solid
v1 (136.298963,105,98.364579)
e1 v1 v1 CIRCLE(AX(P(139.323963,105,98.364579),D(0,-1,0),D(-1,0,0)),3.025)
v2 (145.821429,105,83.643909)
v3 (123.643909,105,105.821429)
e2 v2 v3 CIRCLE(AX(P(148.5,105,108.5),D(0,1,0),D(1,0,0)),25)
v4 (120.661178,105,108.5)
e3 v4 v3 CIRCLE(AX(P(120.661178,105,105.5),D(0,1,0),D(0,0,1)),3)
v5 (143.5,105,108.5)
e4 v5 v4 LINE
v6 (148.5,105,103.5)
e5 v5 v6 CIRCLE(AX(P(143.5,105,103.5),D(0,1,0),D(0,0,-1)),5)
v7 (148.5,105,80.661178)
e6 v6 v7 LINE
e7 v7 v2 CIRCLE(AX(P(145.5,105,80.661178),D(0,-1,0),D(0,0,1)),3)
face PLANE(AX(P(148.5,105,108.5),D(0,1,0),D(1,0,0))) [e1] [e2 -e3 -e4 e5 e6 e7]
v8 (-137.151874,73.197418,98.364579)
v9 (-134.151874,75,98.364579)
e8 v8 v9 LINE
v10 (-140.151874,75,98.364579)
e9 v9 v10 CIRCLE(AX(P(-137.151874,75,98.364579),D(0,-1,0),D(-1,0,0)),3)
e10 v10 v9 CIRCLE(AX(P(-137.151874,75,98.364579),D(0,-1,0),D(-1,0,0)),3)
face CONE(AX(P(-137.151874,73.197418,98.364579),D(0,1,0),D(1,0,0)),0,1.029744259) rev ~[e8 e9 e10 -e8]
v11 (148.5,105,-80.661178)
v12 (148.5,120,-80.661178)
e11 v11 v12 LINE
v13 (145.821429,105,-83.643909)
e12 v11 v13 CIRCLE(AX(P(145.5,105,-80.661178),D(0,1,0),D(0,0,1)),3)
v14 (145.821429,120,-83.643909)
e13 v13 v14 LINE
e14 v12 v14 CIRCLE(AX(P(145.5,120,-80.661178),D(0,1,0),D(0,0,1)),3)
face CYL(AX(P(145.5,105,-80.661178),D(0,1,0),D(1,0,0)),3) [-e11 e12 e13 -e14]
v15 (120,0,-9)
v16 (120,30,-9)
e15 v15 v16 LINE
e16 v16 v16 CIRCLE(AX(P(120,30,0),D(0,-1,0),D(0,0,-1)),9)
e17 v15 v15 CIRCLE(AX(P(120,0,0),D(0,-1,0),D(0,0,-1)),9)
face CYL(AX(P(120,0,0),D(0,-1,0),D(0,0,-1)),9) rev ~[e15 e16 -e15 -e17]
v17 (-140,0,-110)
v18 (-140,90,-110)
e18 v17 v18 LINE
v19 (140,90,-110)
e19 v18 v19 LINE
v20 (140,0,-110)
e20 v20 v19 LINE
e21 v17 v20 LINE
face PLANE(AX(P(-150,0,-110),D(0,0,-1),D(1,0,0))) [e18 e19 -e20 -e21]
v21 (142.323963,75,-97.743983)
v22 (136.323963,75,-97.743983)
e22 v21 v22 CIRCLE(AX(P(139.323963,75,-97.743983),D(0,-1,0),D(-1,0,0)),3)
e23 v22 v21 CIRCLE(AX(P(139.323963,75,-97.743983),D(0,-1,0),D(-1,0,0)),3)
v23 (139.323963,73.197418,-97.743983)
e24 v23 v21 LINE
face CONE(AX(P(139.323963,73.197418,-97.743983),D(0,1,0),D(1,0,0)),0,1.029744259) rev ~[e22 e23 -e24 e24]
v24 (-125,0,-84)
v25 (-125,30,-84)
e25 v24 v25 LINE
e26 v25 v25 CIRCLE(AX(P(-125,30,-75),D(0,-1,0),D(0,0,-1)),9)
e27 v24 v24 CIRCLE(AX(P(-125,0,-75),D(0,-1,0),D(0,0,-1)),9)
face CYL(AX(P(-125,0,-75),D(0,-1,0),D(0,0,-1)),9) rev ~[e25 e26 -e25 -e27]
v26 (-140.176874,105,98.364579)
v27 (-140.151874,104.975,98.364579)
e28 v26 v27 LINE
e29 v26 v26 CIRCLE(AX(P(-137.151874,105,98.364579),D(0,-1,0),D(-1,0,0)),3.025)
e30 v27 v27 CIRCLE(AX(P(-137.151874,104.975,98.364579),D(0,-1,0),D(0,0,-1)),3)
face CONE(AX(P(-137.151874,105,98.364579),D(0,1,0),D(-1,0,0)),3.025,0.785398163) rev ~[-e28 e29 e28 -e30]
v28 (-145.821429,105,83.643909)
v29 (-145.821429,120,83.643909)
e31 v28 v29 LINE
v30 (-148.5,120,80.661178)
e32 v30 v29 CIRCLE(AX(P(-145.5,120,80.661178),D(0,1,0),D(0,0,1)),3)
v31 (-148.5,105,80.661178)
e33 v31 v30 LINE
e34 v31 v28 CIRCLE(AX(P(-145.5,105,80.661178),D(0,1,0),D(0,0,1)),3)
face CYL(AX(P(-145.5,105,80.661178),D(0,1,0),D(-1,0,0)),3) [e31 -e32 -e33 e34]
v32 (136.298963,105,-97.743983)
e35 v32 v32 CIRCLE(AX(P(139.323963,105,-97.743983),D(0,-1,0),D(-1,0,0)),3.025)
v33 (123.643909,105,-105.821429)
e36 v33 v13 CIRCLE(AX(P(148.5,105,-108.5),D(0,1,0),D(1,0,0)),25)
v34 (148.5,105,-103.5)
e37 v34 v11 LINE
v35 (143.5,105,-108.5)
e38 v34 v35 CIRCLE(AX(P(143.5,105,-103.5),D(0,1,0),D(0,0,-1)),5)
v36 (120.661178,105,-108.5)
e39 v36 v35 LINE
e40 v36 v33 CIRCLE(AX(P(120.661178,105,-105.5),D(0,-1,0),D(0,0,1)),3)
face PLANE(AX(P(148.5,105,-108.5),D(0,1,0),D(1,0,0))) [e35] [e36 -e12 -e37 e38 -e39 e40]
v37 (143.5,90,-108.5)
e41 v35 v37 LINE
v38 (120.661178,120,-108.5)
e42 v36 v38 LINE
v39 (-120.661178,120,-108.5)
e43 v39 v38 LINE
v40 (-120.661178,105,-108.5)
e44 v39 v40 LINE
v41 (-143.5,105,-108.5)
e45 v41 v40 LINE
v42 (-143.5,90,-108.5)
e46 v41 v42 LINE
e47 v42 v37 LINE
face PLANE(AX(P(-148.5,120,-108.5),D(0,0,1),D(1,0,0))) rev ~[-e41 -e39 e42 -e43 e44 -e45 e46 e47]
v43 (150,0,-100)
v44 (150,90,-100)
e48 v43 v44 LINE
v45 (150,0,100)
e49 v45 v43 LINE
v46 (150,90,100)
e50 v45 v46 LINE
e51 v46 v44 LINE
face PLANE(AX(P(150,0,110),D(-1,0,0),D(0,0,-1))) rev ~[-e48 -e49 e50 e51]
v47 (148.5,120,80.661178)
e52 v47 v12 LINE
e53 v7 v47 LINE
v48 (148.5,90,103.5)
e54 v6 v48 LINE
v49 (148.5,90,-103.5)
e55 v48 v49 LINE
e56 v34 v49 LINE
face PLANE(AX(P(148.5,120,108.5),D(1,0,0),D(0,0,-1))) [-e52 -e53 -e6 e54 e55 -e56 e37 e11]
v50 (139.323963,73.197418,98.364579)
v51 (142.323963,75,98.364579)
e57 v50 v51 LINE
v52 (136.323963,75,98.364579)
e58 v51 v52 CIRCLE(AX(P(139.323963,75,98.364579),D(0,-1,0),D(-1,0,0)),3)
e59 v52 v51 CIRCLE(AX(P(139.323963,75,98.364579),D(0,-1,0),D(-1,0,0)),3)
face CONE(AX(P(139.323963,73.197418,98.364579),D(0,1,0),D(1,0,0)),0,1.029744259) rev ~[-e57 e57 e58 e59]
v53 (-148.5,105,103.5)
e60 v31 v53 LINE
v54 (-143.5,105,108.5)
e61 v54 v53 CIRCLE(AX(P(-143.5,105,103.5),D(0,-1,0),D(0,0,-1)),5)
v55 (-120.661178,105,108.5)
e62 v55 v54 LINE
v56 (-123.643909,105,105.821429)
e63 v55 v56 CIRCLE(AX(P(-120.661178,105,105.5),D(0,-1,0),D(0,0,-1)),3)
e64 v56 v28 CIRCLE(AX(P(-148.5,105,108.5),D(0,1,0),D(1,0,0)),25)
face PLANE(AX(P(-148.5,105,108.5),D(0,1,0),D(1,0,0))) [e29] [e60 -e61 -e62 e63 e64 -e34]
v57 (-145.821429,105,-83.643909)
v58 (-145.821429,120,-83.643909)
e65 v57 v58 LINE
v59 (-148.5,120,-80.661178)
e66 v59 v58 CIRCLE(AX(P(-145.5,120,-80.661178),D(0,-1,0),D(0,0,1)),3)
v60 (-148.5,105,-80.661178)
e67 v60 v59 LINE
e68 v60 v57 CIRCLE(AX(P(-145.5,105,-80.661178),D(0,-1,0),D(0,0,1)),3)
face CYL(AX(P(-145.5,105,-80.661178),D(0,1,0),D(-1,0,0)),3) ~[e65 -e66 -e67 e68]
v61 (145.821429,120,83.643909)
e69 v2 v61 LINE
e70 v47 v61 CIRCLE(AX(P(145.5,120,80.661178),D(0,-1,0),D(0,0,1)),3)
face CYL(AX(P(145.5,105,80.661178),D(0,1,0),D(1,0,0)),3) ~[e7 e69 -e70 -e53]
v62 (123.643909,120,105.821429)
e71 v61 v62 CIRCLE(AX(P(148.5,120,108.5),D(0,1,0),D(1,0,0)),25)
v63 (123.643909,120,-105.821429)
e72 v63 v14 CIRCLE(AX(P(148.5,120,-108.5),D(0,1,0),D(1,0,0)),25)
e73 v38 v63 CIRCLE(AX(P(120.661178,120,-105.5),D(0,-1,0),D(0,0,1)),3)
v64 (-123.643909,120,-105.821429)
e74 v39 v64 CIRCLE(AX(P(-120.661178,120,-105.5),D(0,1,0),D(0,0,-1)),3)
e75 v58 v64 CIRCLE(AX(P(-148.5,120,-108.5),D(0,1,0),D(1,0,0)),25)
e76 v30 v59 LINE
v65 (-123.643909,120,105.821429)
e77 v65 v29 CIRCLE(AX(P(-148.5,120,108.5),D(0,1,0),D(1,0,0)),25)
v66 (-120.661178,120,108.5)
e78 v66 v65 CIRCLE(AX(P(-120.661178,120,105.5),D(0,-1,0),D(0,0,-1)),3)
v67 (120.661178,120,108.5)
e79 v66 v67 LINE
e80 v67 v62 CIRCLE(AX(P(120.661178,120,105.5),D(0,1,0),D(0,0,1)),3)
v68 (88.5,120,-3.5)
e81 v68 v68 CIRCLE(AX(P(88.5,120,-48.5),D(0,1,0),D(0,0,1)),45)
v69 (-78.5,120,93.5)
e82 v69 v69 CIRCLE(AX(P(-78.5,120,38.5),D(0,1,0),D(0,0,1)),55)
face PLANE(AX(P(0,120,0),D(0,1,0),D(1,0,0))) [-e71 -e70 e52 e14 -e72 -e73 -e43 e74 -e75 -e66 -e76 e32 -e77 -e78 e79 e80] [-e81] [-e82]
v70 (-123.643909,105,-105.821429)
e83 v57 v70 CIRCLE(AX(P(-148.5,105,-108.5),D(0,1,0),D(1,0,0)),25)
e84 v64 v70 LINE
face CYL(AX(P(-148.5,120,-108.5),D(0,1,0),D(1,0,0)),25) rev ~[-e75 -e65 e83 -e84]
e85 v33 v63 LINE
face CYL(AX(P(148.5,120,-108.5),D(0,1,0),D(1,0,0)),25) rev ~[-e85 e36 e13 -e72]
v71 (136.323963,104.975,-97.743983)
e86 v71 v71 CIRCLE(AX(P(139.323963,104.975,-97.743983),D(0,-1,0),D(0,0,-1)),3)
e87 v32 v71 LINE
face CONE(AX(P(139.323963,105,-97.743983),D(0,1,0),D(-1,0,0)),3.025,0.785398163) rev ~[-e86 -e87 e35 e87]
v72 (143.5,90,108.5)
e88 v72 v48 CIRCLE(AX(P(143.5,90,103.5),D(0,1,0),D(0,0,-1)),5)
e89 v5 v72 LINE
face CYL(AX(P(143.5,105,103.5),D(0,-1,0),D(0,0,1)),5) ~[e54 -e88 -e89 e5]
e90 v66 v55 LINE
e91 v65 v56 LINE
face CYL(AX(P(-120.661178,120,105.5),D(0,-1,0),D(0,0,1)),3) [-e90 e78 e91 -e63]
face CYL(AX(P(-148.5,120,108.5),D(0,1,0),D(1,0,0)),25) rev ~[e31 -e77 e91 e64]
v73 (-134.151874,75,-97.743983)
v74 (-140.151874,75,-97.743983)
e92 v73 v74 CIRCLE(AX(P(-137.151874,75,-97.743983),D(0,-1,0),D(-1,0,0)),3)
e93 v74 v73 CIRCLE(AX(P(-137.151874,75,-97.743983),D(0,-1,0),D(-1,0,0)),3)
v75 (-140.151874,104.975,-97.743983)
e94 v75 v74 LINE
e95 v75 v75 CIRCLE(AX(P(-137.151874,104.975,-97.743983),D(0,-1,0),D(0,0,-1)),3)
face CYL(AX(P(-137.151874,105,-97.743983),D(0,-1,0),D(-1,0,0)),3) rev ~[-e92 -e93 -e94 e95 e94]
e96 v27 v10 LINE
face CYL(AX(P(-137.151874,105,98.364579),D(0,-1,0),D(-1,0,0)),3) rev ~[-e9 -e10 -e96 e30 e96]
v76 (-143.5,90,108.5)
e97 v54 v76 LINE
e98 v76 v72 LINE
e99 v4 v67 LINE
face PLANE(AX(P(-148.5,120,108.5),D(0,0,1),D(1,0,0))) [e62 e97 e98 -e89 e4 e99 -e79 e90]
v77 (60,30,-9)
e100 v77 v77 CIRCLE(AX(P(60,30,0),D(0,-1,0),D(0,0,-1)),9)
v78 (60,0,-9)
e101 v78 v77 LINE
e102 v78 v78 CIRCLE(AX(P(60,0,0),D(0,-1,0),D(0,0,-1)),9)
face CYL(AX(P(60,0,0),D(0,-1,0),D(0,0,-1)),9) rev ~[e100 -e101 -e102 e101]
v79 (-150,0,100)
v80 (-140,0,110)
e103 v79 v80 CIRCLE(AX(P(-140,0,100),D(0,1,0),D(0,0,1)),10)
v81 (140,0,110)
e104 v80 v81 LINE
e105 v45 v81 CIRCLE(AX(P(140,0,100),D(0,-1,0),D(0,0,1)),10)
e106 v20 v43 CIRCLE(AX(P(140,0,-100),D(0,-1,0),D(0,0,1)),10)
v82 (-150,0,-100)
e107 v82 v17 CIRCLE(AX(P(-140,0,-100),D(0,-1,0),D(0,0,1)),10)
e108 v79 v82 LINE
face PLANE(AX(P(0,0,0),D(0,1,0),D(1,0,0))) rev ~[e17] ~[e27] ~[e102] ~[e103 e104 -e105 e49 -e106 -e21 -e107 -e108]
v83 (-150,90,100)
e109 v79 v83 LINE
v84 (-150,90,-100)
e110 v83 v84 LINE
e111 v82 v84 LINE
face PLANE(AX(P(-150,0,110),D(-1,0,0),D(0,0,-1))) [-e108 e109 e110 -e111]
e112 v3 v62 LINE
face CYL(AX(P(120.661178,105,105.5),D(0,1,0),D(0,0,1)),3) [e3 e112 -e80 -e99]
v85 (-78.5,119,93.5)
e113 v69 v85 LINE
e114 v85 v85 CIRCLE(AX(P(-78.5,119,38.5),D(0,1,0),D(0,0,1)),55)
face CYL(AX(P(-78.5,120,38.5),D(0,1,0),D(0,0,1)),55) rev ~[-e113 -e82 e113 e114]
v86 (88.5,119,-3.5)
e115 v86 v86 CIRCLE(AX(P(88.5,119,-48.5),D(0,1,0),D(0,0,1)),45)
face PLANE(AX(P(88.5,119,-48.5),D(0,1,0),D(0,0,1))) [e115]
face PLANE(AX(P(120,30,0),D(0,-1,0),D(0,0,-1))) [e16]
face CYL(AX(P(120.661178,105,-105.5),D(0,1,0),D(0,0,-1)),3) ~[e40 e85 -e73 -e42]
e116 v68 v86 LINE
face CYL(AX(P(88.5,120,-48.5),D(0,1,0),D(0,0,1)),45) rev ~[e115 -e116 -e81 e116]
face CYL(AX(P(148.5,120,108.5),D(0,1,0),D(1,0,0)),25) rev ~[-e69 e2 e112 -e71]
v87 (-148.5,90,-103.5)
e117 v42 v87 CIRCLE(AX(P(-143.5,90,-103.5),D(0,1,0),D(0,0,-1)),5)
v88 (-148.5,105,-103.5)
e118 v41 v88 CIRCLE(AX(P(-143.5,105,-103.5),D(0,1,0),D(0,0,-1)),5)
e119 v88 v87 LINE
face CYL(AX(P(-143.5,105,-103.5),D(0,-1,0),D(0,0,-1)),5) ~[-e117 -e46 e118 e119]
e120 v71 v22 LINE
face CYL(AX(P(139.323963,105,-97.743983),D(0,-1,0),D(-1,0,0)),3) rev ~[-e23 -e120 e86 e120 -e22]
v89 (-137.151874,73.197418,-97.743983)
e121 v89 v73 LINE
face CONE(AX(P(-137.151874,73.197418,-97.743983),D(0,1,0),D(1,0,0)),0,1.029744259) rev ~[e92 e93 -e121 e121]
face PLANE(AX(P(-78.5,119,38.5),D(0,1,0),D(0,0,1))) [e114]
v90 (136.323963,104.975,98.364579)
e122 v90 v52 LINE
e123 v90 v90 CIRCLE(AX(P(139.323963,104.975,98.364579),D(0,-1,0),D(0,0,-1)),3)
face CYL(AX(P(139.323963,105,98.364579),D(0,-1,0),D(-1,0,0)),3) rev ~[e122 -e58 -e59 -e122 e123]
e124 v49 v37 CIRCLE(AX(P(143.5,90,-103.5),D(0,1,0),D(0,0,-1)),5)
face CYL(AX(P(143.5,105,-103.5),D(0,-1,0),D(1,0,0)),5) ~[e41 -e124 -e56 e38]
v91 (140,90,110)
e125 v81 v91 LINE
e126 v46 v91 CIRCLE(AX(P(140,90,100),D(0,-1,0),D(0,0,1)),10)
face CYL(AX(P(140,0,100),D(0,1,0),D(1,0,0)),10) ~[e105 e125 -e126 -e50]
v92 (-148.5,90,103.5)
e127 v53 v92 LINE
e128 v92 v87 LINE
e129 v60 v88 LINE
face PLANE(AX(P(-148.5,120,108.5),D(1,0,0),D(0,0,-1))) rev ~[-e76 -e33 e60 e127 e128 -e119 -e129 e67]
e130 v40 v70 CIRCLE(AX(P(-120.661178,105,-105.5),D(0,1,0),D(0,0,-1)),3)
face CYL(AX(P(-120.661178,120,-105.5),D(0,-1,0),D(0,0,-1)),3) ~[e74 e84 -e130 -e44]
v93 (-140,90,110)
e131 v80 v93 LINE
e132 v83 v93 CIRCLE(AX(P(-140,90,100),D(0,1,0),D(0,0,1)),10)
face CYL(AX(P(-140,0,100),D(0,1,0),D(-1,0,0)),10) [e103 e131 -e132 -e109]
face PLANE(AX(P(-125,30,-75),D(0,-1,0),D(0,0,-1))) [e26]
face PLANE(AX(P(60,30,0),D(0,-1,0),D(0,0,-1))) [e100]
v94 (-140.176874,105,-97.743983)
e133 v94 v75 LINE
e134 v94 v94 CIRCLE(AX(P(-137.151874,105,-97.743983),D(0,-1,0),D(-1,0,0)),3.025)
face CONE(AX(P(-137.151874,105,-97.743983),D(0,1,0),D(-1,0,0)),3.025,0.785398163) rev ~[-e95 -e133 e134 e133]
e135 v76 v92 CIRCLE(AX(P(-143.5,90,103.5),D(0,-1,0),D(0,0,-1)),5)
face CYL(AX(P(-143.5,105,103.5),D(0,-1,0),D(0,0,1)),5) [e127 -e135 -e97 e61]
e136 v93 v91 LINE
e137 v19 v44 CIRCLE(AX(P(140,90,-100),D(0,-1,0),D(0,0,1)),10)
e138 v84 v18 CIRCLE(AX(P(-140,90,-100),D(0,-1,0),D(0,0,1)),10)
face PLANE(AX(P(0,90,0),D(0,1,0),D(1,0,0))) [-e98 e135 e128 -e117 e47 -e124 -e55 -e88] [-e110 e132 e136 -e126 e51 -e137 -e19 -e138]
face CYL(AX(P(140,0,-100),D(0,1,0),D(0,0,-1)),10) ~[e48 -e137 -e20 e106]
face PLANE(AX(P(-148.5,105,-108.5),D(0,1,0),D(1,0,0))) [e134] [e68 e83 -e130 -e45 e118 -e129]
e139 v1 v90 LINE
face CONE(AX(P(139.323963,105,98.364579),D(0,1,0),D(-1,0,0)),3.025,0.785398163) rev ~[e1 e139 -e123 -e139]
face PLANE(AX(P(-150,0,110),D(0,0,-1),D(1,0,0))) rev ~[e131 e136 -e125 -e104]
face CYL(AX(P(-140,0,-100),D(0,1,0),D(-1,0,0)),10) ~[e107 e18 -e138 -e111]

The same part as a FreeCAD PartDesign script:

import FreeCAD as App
import Part
import Sketcher
from FreeCAD import Vector
Q = App.Units.Quantity


def edges_at(feature, points):
    """Names of the edges that pass closest to the given points."""
    edges = feature.Shape.Edges
    near = lambda p: min(range(len(edges)), key=lambda i: edges[i].distToShape(Part.Vertex(*p))[0])
    return sorted({f"Edge{near(p) + 1}" for p in points})

doc = App.newDocument("Part")
body = doc.addObject("PartDesign::Body", "Body")

sketch1 = doc.addObject("Sketcher::SketchObject", "Sketch")
body.addObject(sketch1)
sketch1.AttachmentSupport = (doc.XZ_Plane, [""])
sketch1.MapMode = "FlatFace"
sketch1.addGeometry([
    Part.LineSegment(Vector(-150, -110, 0), Vector(-150, 110, 0)),
    Part.LineSegment(Vector(-150, 110, 0), Vector(150, 110, 0)),
    Part.LineSegment(Vector(150, 110, 0), Vector(150, -110, 0)),
    Part.LineSegment(Vector(150, -110, 0), Vector(-150, -110, 0)),
], False)
sketch1.addConstraint([
    Sketcher.Constraint("Coincident", 0, 2, 1, 1),
    Sketcher.Constraint("Coincident", 1, 2, 2, 1),
    Sketcher.Constraint("Coincident", 2, 2, 3, 1),
    Sketcher.Constraint("Coincident", 3, 2, 0, 1),
    Sketcher.Constraint("Vertical", 0),
    Sketcher.Constraint("Horizontal", 1),
    Sketcher.Constraint("Vertical", 2),
    Sketcher.Constraint("Horizontal", 3),
    Sketcher.Constraint("Symmetric", 0, 2, 2, 2, -1, 1),
    Sketcher.Constraint("DistanceX", 1, 1, 1, 2, Q("300 mm")),
    Sketcher.Constraint("DistanceY", 0, 1, 0, 2, Q("220 mm")),
])
pad1 = doc.addObject("PartDesign::Pad", "Pad")
body.addObject(pad1)
pad1.Profile = sketch1
pad1.Length = 120
pad1.Reversed = True

sketch2 = doc.addObject("Sketcher::SketchObject", "Sketch001")
body.addObject(sketch2)
sketch2.AttachmentSupport = (doc.XZ_Plane, [""])
sketch2.MapMode = "FlatFace"
sketch2.AttachmentOffset = App.Placement(Vector(0, 0, -120), App.Rotation())
sketch2.addGeometry([
    Part.LineSegment(Vector(-190, -150, 0), Vector(-190, 150, 0)),
    Part.LineSegment(Vector(-190, 150, 0), Vector(190, 150, 0)),
    Part.LineSegment(Vector(190, 150, 0), Vector(190, -150, 0)),
    Part.LineSegment(Vector(190, -150, 0), Vector(-190, -150, 0)),
    Part.LineSegment(Vector(148, 108, 0), Vector(-148, 108, 0)),
    Part.LineSegment(Vector(-148, 108, 0), Vector(-148, -108, 0)),
    Part.LineSegment(Vector(-148, -108, 0), Vector(148, -108, 0)),
    Part.LineSegment(Vector(148, -108, 0), Vector(148, 108, 0)),
], False)
sketch2.addConstraint([
    Sketcher.Constraint("Coincident", 0, 2, 1, 1),
    Sketcher.Constraint("Coincident", 1, 2, 2, 1),
    Sketcher.Constraint("Coincident", 2, 2, 3, 1),
    Sketcher.Constraint("Coincident", 3, 2, 0, 1),
    Sketcher.Constraint("Coincident", 4, 2, 5, 1),
    Sketcher.Constraint("Coincident", 5, 2, 6, 1),
    Sketcher.Constraint("Coincident", 6, 2, 7, 1),
    Sketcher.Constraint("Coincident", 7, 2, 4, 1),
    Sketcher.Constraint("Vertical", 0),
    Sketcher.Constraint("Horizontal", 1),
    Sketcher.Constraint("Vertical", 2),
    Sketcher.Constraint("Horizontal", 3),
    Sketcher.Constraint("Horizontal", 4),
    Sketcher.Constraint("Vertical", 5),
    Sketcher.Constraint("Horizontal", 6),
    Sketcher.Constraint("Vertical", 7),
    Sketcher.Constraint("Symmetric", 0, 2, 2, 2, -1, 1),
    Sketcher.Constraint("Symmetric", 4, 2, 6, 2, -1, 1),
    Sketcher.Constraint("DistanceX", 4, 2, 4, 1, Q("297 mm")),
    Sketcher.Constraint("DistanceY", 5, 2, 5, 1, Q("217 mm")),
    Sketcher.Constraint("DistanceX", 1, 1, 1, 2, Q("380.18 mm")),
    Sketcher.Constraint("DistanceY", 0, 1, 0, 2, Q("300.18 mm")),
])
pocket1 = doc.addObject("PartDesign::Pocket", "Pocket")
body.addObject(pocket1)
pocket1.Profile = sketch2
pocket1.Length = 30
pocket1.Reversed = True

sketch3 = doc.addObject("Sketcher::SketchObject", "Sketch002")
body.addObject(sketch3)
sketch3.AttachmentSupport = (doc.XZ_Plane, [""])
sketch3.MapMode = "FlatFace"
sketch3.AttachmentOffset = App.Placement(Vector(0, 0, -120), App.Rotation())
sketch3.addGeometry([
    Part.Circle(Vector(-148, 108, 0), Vector(0, 0, 1), 25),
    Part.Circle(Vector(-148, -108, 0), Vector(0, 0, 1), 25),
    Part.Circle(Vector(148, -108, 0), Vector(0, 0, 1), 25),
    Part.Circle(Vector(148, 108, 0), Vector(0, 0, 1), 25),
], False)
sketch3.addConstraint([
    Sketcher.Constraint("Equal", 0, 1),
    Sketcher.Constraint("Equal", 1, 2),
    Sketcher.Constraint("Equal", 2, 3),
    Sketcher.Constraint("Symmetric", 0, 3, 2, 3, -1, 1),
    Sketcher.Constraint("Symmetric", 1, 3, 3, 3, -1, 1),
    Sketcher.Constraint("Symmetric", 1, 3, 2, 3, -2),
    Sketcher.Constraint("Diameter", 0, Q("50 mm")),
    Sketcher.Constraint("DistanceY", 1, 3, 0, 3, Q("217 mm")),
    Sketcher.Constraint("DistanceX", 1, 3, 2, 3, Q("297 mm")),
])
pocket2 = doc.addObject("PartDesign::Pocket", "Pocket001")
body.addObject(pocket2)
pocket2.Profile = sketch3
pocket2.Length = 15
pocket2.Reversed = True
doc.recompute()

fillet = doc.addObject("PartDesign::Fillet", "Fillet")
body.addObject(fillet)
fillet.Base = (pocket2, edges_at(pocket2, [
    (148.5, 112.5, 83.5),
    (123.5, 112.5, 108.5),
    (123.5, 112.5, -108.5),
    (148.5, 112.5, -83.5),
    (-123.5, 112.5, -108.5),
    (-148.5, 112.5, -83.5),
    (-123.5, 112.5, 108.5),
    (-148.5, 112.5, 83.5),
]))
fillet.Radius = 3
doc.recompute()

fillet2 = doc.addObject("PartDesign::Fillet", "Fillet001")
body.addObject(fillet2)
fillet2.Base = (fillet, edges_at(fillet, [
    (148.5, 97.5, -108.5),
    (148.5, 97.5, 108.5),
    (-148.5, 97.5, 108.5),
    (-148.5, 97.5, -108.5),
]))
fillet2.Radius = 5
doc.recompute()

fillet3 = doc.addObject("PartDesign::Fillet", "Fillet002")
body.addObject(fillet3)
fillet3.Base = (fillet2, edges_at(fillet2, [
    (-150, 45, -110),
    (150, 45, -110),
    (150, 45, 110),
    (-150, 45, 110),
]))
fillet3.Radius = 10

sketch4 = doc.addObject("Sketcher::SketchObject", "Sketch003")
body.addObject(sketch4)
sketch4.AttachmentSupport = (doc.XZ_Plane, [""])
sketch4.MapMode = "FlatFace"
sketch4.AttachmentOffset = App.Placement(Vector(0, 0, -105), App.Rotation())
sketch4.addGeometry([
    Part.Circle(Vector(-137.2, -97.7, 0), Vector(0, 0, 1), 3),
    Part.Circle(Vector(-137.2, 98.4, 0), Vector(0, 0, 1), 3),
    Part.Circle(Vector(139.3, 98.4, 0), Vector(0, 0, 1), 3),
    Part.Circle(Vector(139.3, -97.7, 0), Vector(0, 0, 1), 3),
], False)
sketch4.addConstraint([
    Sketcher.Constraint("Equal", 0, 1),
    Sketcher.Constraint("Equal", 1, 2),
    Sketcher.Constraint("Equal", 2, 3),
    Sketcher.Constraint("Horizontal", 1, 3, 2, 3),
    Sketcher.Constraint("Horizontal", 0, 3, 3, 3),
    Sketcher.Constraint("Vertical", 0, 3, 1, 3),
    Sketcher.Constraint("Vertical", 2, 3, 3, 3),
    Sketcher.Constraint("Diameter", 0, Q("6 mm")),
    Sketcher.Constraint("DistanceY", -1, 1, 1, 3, Q("98.364579 mm")),
    Sketcher.Constraint("DistanceY", 0, 3, 1, 3, Q("196.108562 mm")),
    Sketcher.Constraint("DistanceX", 0, 3, -1, 1, Q("137.151874 mm")),
    Sketcher.Constraint("DistanceX", -1, 1, 2, 3, Q("139.323963 mm")),
])
doc.recompute()
hole = doc.addObject("PartDesign::Hole", "Hole")
body.addObject(hole)
hole.Profile = sketch4
hole.ThreadType = "None"
hole.Diameter = 6
hole.DepthType = "Dimension"
hole.Depth = 30
hole.DrillPoint = "Angled"
hole.DrillPointAngle = 118
hole.HoleCutType = "Countersink"
hole.HoleCutDiameter = 6.05
hole.HoleCutCountersinkAngle = 90
hole.Reversed = True

sketch5 = doc.addObject("Sketcher::SketchObject", "Sketch004")
body.addObject(sketch5)
sketch5.AttachmentSupport = (doc.XZ_Plane, [""])
sketch5.MapMode = "FlatFace"
sketch5.AttachmentOffset = App.Placement(Vector(0, 0, -120), App.Rotation())
sketch5.addGeometry([
    Part.Circle(Vector(-78, 38, 0), Vector(0, 0, 1), 55),
    Part.Circle(Vector(88, -48, 0), Vector(0, 0, 1), 45),
], False)
sketch5.addConstraint([
    Sketcher.Constraint("Diameter", 0, Q("110 mm")),
    Sketcher.Constraint("Diameter", 1, Q("90 mm")),
    Sketcher.Constraint("DistanceX", 0, 3, 1, 3, Q("167 mm")),
    Sketcher.Constraint("DistanceY", 1, 3, 0, 3, Q("87 mm")),
    Sketcher.Constraint("DistanceX", 0, 3, -1, 1, Q("78.5 mm")),
    Sketcher.Constraint("DistanceY", -1, 1, 0, 3, Q("38.5 mm")),
])
pocket3 = doc.addObject("PartDesign::Pocket", "Pocket002")
body.addObject(pocket3)
pocket3.Profile = sketch5
pocket3.Length = 1
pocket3.Reversed = True

sketch6 = doc.addObject("Sketcher::SketchObject", "Sketch005")
body.addObject(sketch6)
sketch6.AttachmentSupport = (doc.XZ_Plane, [""])
sketch6.MapMode = "FlatFace"
sketch6.addGeometry([
    Part.Circle(Vector(120, 0, 0), Vector(0, 0, 1), 9),
    Part.Circle(Vector(60, 0, 0), Vector(0, 0, 1), 9),
    Part.Circle(Vector(-125, -75, 0), Vector(0, 0, 1), 9),
], False)
sketch6.addConstraint([
    Sketcher.Constraint("Equal", 0, 1),
    Sketcher.Constraint("Equal", 1, 2),
    Sketcher.Constraint("PointOnObject", 0, 3, -1),
    Sketcher.Constraint("PointOnObject", 1, 3, -1),
    Sketcher.Constraint("Diameter", 0, Q("18 mm")),
    Sketcher.Constraint("DistanceX", -1, 1, 0, 3, Q("120 mm")),
    Sketcher.Constraint("DistanceX", -1, 1, 1, 3, Q("60 mm")),
    Sketcher.Constraint("DistanceX", 2, 3, -1, 1, Q("125 mm")),
    Sketcher.Constraint("DistanceY", 2, 3, -1, 1, Q("75 mm")),
])
pocket4 = doc.addObject("PartDesign::Pocket", "Pocket003")
body.addObject(pocket4)
pocket4.Profile = sketch6
pocket4.Length = 30

doc.recompute()
